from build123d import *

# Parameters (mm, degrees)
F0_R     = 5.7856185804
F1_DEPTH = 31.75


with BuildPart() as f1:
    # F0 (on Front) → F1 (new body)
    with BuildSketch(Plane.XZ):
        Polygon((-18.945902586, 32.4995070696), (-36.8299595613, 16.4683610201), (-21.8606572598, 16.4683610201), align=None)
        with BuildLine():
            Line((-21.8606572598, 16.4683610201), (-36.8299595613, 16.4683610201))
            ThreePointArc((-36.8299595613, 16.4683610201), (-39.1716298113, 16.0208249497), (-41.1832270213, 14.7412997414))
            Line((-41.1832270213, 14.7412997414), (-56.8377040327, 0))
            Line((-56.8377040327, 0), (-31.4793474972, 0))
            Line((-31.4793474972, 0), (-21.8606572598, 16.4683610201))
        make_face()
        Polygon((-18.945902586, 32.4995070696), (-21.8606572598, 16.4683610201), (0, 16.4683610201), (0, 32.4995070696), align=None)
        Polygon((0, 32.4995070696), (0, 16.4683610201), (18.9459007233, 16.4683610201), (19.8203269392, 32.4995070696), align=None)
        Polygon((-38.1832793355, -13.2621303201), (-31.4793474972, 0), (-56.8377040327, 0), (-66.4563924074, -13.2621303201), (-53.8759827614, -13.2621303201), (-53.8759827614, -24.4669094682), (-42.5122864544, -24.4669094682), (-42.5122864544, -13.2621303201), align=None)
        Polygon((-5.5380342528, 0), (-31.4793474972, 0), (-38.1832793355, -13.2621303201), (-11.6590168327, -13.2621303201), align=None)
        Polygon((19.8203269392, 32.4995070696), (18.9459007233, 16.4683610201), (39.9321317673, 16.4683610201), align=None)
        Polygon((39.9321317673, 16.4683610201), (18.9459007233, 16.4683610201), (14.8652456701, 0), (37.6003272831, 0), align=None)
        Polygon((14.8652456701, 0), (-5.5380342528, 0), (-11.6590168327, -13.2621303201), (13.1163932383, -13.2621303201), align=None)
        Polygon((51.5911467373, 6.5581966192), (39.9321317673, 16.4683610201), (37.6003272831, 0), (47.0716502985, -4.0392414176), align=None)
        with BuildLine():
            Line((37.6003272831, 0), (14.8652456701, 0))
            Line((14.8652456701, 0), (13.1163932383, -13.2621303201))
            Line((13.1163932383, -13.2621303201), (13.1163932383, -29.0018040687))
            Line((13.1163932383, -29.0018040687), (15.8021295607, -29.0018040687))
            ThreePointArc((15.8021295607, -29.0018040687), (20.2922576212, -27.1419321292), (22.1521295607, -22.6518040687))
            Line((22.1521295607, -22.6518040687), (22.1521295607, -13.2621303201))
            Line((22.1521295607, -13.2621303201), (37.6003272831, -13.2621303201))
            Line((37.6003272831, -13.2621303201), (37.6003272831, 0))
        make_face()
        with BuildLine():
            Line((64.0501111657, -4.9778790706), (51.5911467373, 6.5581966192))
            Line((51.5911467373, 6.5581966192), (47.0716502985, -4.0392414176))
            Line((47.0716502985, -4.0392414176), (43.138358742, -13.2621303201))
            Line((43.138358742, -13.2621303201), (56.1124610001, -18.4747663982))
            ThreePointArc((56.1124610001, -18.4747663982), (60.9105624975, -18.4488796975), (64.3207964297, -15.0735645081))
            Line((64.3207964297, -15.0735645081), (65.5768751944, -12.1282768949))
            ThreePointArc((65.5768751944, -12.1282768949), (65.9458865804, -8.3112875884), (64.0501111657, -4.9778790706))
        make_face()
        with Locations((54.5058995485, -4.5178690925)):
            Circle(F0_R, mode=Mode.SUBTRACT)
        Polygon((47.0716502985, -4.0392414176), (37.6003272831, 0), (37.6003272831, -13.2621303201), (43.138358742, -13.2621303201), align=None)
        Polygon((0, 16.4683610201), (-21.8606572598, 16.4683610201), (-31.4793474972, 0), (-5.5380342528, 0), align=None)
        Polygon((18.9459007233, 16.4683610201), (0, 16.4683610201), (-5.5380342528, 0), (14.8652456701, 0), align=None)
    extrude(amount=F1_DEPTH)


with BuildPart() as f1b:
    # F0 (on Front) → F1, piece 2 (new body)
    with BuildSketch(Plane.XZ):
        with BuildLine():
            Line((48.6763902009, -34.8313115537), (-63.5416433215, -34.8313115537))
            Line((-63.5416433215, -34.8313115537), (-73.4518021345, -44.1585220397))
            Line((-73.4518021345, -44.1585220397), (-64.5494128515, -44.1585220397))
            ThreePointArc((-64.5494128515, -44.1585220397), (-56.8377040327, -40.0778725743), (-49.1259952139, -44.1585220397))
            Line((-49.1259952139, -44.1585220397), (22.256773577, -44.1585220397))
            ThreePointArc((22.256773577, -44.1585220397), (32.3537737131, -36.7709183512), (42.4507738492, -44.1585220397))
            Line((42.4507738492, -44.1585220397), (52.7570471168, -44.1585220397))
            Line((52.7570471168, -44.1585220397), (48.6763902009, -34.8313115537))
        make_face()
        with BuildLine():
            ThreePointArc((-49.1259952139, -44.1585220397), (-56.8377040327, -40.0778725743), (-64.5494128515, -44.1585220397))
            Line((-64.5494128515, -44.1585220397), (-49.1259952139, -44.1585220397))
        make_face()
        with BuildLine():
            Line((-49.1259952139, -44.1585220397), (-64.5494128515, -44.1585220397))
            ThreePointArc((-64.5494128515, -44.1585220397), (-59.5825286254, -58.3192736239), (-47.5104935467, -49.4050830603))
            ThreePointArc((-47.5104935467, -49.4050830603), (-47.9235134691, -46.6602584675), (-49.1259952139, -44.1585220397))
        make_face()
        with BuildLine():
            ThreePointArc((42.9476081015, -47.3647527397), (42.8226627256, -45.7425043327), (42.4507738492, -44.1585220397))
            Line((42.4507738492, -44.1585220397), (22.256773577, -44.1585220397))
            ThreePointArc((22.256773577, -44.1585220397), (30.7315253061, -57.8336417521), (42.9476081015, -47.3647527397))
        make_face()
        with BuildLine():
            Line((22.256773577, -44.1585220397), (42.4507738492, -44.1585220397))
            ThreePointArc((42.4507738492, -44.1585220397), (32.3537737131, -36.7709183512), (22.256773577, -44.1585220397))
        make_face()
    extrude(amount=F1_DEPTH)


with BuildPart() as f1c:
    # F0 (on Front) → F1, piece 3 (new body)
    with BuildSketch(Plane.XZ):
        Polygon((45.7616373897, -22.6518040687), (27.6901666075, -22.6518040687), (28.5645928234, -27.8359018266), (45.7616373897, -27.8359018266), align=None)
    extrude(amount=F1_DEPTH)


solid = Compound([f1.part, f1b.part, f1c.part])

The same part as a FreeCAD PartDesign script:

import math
import FreeCAD as App
import Part
import Sketcher
Q = App.Units.Quantity

doc = App.newDocument("Part")
body = doc.addObject("PartDesign::Body", "Body")

# Sketch on XZ plane
sketch1 = body.newObject("Sketcher::SketchObject", "Sketch")
sketch1.AttachmentSupport = (doc.getObject("XZ_Plane"), [""])
sketch1.MapMode = "FlatFace"
sketch1.addGeometry(Part.LineSegment(App.Vector(-42.5, -13.3, 0), App.Vector(13.1, -13.3, 0)), False)
sketch1.addGeometry(Part.LineSegment(App.Vector(13.1, -13.3, 0), App.Vector(13.1, -29, 0)), False)
sketch1.addGeometry(Part.LineSegment(App.Vector(13.1, -29, 0), App.Vector(15.8, -29, 0)), False)
sketch1.addGeometry(Part.ArcOfCircle(Part.Circle(App.Vector(15.8, -22.7, 0), App.Vector(0, 0, 1), 6.3), math.radians(-90), math.radians(0)), False)
sketch1.addGeometry(Part.LineSegment(App.Vector(22.2, -22.7, 0), App.Vector(22.2, -13.3, 0)), False)
sketch1.addGeometry(Part.LineSegment(App.Vector(22.2, -13.3, 0), App.Vector(43.1, -13.3, 0)), False)
sketch1.addGeometry(Part.LineSegment(App.Vector(43.1, -13.3, 0), App.Vector(56.1, -18.5, 0)), False)
sketch1.addGeometry(Part.ArcOfCircle(Part.Circle(App.Vector(58.5, -12.6, 0), App.Vector(0, 0, 1), 6.3), math.radians(-112), math.radians(-23)), False)
sketch1.addGeometry(Part.LineSegment(App.Vector(64.3, -15.1, 0), App.Vector(65.6, -12.1, 0)), False)
sketch1.addGeometry(Part.ArcOfCircle(Part.Circle(App.Vector(59.7, -9.6, 0), App.Vector(0, 0, 1), 6.3), math.radians(-23), math.radians(47)), False)
sketch1.addGeometry(Part.LineSegment(App.Vector(64.1, -5, 0), App.Vector(51.6, 6.6, 0)), False)
sketch1.addGeometry(Part.LineSegment(App.Vector(51.6, 6.6, 0), App.Vector(39.9, 16.5, 0)), False)
sketch1.addGeometry(Part.LineSegment(App.Vector(39.9, 16.5, 0), App.Vector(19.8, 32.5, 0)), False)
sketch1.addGeometry(Part.LineSegment(App.Vector(19.8, 32.5, 0), App.Vector(-18.9, 32.5, 0)), False)
sketch1.addGeometry(Part.LineSegment(App.Vector(-18.9, 32.5, 0), App.Vector(-36.8, 16.5, 0)), False)
sketch1.addGeometry(Part.ArcOfCircle(Part.Circle(App.Vector(-36.8, 10.1, 0), App.Vector(0, 0, 1), 6.3), math.radians(90), math.radians(133)), False)
sketch1.addGeometry(Part.LineSegment(App.Vector(-41.2, 14.7, 0), App.Vector(-56.8, 0, 0)), False)
sketch1.addGeometry(Part.LineSegment(App.Vector(-56.8, 0, 0), App.Vector(-66.5, -13.3, 0)), False)
sketch1.addGeometry(Part.LineSegment(App.Vector(-66.5, -13.3, 0), App.Vector(-53.9, -13.3, 0)), False)
sketch1.addGeometry(Part.LineSegment(App.Vector(-53.9, -13.3, 0), App.Vector(-53.9, -24.5, 0)), False)
sketch1.addGeometry(Part.LineSegment(App.Vector(-53.9, -24.5, 0), App.Vector(-42.5, -24.5, 0)), False)
sketch1.addGeometry(Part.LineSegment(App.Vector(-42.5, -24.5, 0), App.Vector(-42.5, -13.3, 0)), False)
sketch1.addGeometry(Part.Circle(App.Vector(54.5, -4.5, 0), App.Vector(0, 0, 1), 5.8), False)
sketch1.addConstraint(Sketcher.Constraint("Coincident", 0, 2, 1, 1))
sketch1.addConstraint(Sketcher.Constraint("Coincident", 1, 2, 2, 1))
sketch1.addConstraint(Sketcher.Constraint("Tangent", 2, 2, 3, 1))
sketch1.addConstraint(Sketcher.Constraint("Tangent", 3, 2, 4, 1))
sketch1.addConstraint(Sketcher.Constraint("Coincident", 4, 2, 5, 1))
sketch1.addConstraint(Sketcher.Constraint("Coincident", 5, 2, 6, 1))
sketch1.addConstraint(Sketcher.Constraint("Tangent", 6, 2, 7, 1))
sketch1.addConstraint(Sketcher.Constraint("Tangent", 7, 2, 8, 1))
sketch1.addConstraint(Sketcher.Constraint("Tangent", 8, 2, 9, 1))
sketch1.addConstraint(Sketcher.Constraint("Tangent", 9, 2, 10, 1))
sketch1.addConstraint(Sketcher.Constraint("Coincident", 10, 2, 11, 1))
sketch1.addConstraint(Sketcher.Constraint("Coincident", 11, 2, 12, 1))
sketch1.addConstraint(Sketcher.Constraint("Coincident", 12, 2, 13, 1))
sketch1.addConstraint(Sketcher.Constraint("Coincident", 13, 2, 14, 1))
sketch1.addConstraint(Sketcher.Constraint("Coincident", 14, 2, 15, 1))
sketch1.addConstraint(Sketcher.Constraint("Tangent", 15, 2, 16, 1))
sketch1.addConstraint(Sketcher.Constraint("Coincident", 16, 2, 17, 1))
sketch1.addConstraint(Sketcher.Constraint("Coincident", 17, 2, 18, 1))
sketch1.addConstraint(Sketcher.Constraint("Coincident", 18, 2, 19, 1))
sketch1.addConstraint(Sketcher.Constraint("Coincident", 19, 2, 20, 1))
sketch1.addConstraint(Sketcher.Constraint("Coincident", 20, 2, 21, 1))
sketch1.addConstraint(Sketcher.Constraint("Coincident", 21, 2, 0, 1))
sketch1.addConstraint(Sketcher.Constraint("Horizontal", 0))
sketch1.addConstraint(Sketcher.Constraint("Vertical", 1))
sketch1.addConstraint(Sketcher.Constraint("Horizontal", 2))
sketch1.addConstraint(Sketcher.Constraint("Vertical", 4))
sketch1.addConstraint(Sketcher.Constraint("Horizontal", 5))
sketch1.addConstraint(Sketcher.Constraint("Horizontal", 13))
sketch1.addConstraint(Sketcher.Constraint("Horizontal", 18))
sketch1.addConstraint(Sketcher.Constraint("Vertical", 19))
sketch1.addConstraint(Sketcher.Constraint("Horizontal", 20))
sketch1.addConstraint(Sketcher.Constraint("Vertical", 21))
sketch1.addConstraint(Sketcher.Constraint("Equal", 3, 7))
sketch1.addConstraint(Sketcher.Constraint("Equal", 7, 9))
sketch1.addConstraint(Sketcher.Constraint("Equal", 9, 15))
sketch1.addConstraint(Sketcher.Constraint("PointOnObject", 16, 2, -1))
sketch1.addConstraint(Sketcher.Constraint("Horizontal", 0, 2, 4, 2))
sketch1.addConstraint(Sketcher.Constraint("Horizontal", 11, 2, 14, 2))
sketch1.addConstraint(Sketcher.Constraint("Horizontal", 5, 2, 17, 2))
sketch1.addConstraint(Sketcher.Constraint("Vertical", 15, 3, 14, 2))
sketch1.addConstraint(Sketcher.Constraint("Radius", 3, Q("0.25 in")))
sketch1.addConstraint(Sketcher.Constraint("Diameter", 22, Q("11.571237 mm")))
sketch1.addConstraint(Sketcher.Constraint("DistanceX", 15, 3, 22, 3, Q("3.5959 in")))
sketch1.addConstraint(Sketcher.Constraint("Distance", 10, Q("16.979601 mm")))
sketch1.addConstraint(Sketcher.Constraint("Distance", 12, Q("25.719299 mm")))
sketch1.addConstraint(Sketcher.Constraint("DistanceX", 0, 1, 0, 2, Q("55.62868 mm")))
sketch1.addConstraint(Sketcher.Constraint("DistanceX", 5, 1, 5, 2, Q("20.986229 mm")))
sketch1.addConstraint(Sketcher.Constraint("DistanceX", 13, 2, 13, 1, Q("38.76623 mm")))
sketch1.addConstraint(Sketcher.Constraint("DistanceX", 18, 1, 18, 2, Q("12.58041 mm")))
sketch1.addConstraint(Sketcher.Constraint("DistanceY", 19, 2, 19, 1, Q("11.204779 mm")))
sketch1.addConstraint(Sketcher.Constraint("DistanceX", -1, 1, 22, 3, Q("54.5059 mm")))
sketch1.addConstraint(Sketcher.Constraint("DistanceY", -1, 1, 15, 2, Q("14.7413 mm")))
sketch1.addConstraint(Sketcher.Constraint("DistanceX", 0, 2, 7, 3, Q("45.363399 mm")))
sketch1.addConstraint(Sketcher.Constraint("DistanceY", 6, 2, 7, 2, Q("3.401202 mm")))
sketch1.addConstraint(Sketcher.Constraint("DistanceX", 16, 2, 13, 2, Q("37.891801 mm")))
sketch1.addConstraint(Sketcher.Constraint("DistanceX", 2, 1, 2, 2, Q("2.685736 mm")))
sketch1.addConstraint(Sketcher.Constraint("DistanceX", 20, 1, 20, 2, Q("11.363696 mm")))
sketch1.addConstraint(Sketcher.Constraint("DistanceY", 1, 2, 1, 1, Q("15.739674 mm")))
sketch1.addConstraint(Sketcher.Constraint("DistanceX", -1, 1, 3, 3, Q("15.80213 mm")))
sketch1.addConstraint(Sketcher.Constraint("DistanceX", -1, 1, 9, 3, Q("59.735871 mm")))
sketch1.addConstraint(Sketcher.Constraint("DistanceY", 9, 3, -1, 1, Q("9.63726 mm")))
sketch1.addConstraint(Sketcher.Constraint("DistanceY", -1, 1, 15, 3, Q("10.118361 mm")))
sketch1.addConstraint(Sketcher.Constraint("DistanceY", 22, 3, -1, 1, Q("4.517869 mm")))
sketch1.addConstraint(Sketcher.Constraint("DistanceY", 0, 2, -1, 1, Q("13.26213 mm")))
sketch1.addConstraint(Sketcher.Constraint("DistanceX", -1, 1, 9, 2, Q("64.050111 mm")))
sketch1.addConstraint(Sketcher.Constraint("DistanceX", -1, 1, 11, 2, Q("39.932132 mm")))
pad1 = body.newObject("PartDesign::Pad", "Pad")
pad1.Profile = sketch1
pad1.Length = Q("1.25 in")
body2 = doc.addObject("PartDesign::Body", "Body001")

# Sketch on XZ plane
sketch2 = body2.newObject("Sketcher::SketchObject", "Sketch001")
sketch2.AttachmentSupport = (doc.getObject("XZ_Plane001"), [""])
sketch2.MapMode = "FlatFace"
sketch2.addGeometry(Part.LineSegment(App.Vector(48.7, -34.8, 0), App.Vector(-63.5, -34.8, 0)), False)
sketch2.addGeometry(Part.LineSegment(App.Vector(-63.5, -34.8, 0), App.Vector(-73.5, -44.2, 0)), False)
sketch2.addGeometry(Part.LineSegment(App.Vector(-73.5, -44.2, 0), App.Vector(-64.5, -44.2, 0)), False)
sketch2.addGeometry(Part.ArcOfCircle(Part.Circle(App.Vector(-56.8, -49.4, 0), App.Vector(0, 0, 1), 9.3), math.radians(146), math.radians(360)), False)
sketch2.addGeometry(Part.ArcOfCircle(Part.Circle(App.Vector(-56.8, -49.4, 0), App.Vector(0, 0, 1), 9.3), math.radians(0), math.radians(34)), False)
sketch2.addGeometry(Part.LineSegment(App.Vector(-49.1, -44.2, 0), App.Vector(22.3, -44.2, 0)), False)
sketch2.addGeometry(Part.ArcOfCircle(Part.Circle(App.Vector(32.4, -47.4, 0), App.Vector(0, 0, 1), 10.6), math.radians(162), math.radians(360)), False)
sketch2.addGeometry(Part.ArcOfCircle(Part.Circle(App.Vector(32.4, -47.4, 0), App.Vector(0, 0, 1), 10.6), math.radians(0), math.radians(17.62)), False)
sketch2.addGeometry(Part.LineSegment(App.Vector(42.5, -44.2, 0), App.Vector(52.8, -44.2, 0)), False)
sketch2.addGeometry(Part.LineSegment(App.Vector(52.8, -44.2, 0), App.Vector(48.7, -34.8, 0)), False)
sketch2.addConstraint(Sketcher.Constraint("Coincident", 0, 2, 1, 1))
sketch2.addConstraint(Sketcher.Constraint("Coincident", 1, 2, 2, 1))
sketch2.addConstraint(Sketcher.Constraint("Coincident", 2, 2, 3, 1))
sketch2.addConstraint(Sketcher.Constraint("Tangent", 3, 2, 4, 1))
sketch2.addConstraint(Sketcher.Constraint("Coincident", 4, 2, 5, 1))
sketch2.addConstraint(Sketcher.Constraint("Coincident", 5, 2, 6, 1))
sketch2.addConstraint(Sketcher.Constraint("Tangent", 6, 2, 7, 1))
sketch2.addConstraint(Sketcher.Constraint("Coincident", 7, 2, 8, 1))
sketch2.addConstraint(Sketcher.Constraint("Coincident", 8, 2, 9, 1))
sketch2.addConstraint(Sketcher.Constraint("Coincident", 9, 2, 0, 1))
sketch2.addConstraint(Sketcher.Constraint("Horizontal", 0))
sketch2.addConstraint(Sketcher.Constraint("Horizontal", 2))
sketch2.addConstraint(Sketcher.Constraint("Horizontal", 5))
sketch2.addConstraint(Sketcher.Constraint("Horizontal", 8))
sketch2.addConstraint(Sketcher.Constraint("Equal", 3, 4))
sketch2.addConstraint(Sketcher.Constraint("Equal", 6, 7))
sketch2.addConstraint(Sketcher.Constraint("Horizontal", 4, 3, 3, 2))
sketch2.addConstraint(Sketcher.Constraint("Horizontal", 2, 2, 4, 2))
sketch2.addConstraint(Sketcher.Constraint("Horizontal", 7, 3, 6, 2))
sketch2.addConstraint(Sketcher.Constraint("Horizontal", 5, 2, 7, 2))
sketch2.addConstraint(Sketcher.Constraint("Radius", 3, Q("9.32721 mm")))
sketch2.addConstraint(Sketcher.Constraint("Radius", 6, Q("10.593834 mm")))
sketch2.addConstraint(Sketcher.Constraint("DistanceX", 2, 1, 2, 2, Q("8.902389 mm")))
sketch2.addConstraint(Sketcher.Constraint("DistanceX", 5, 1, 5, 2, Q("71.382769 mm")))
sketch2.addConstraint(Sketcher.Constraint("DistanceX", 1, 2, 3, 3, Q("16.614098 mm")))
sketch2.addConstraint(Sketcher.Constraint("DistanceX", 5, 2, 6, 3, Q("10.097 mm")))
sketch2.addConstraint(Sketcher.Constraint("Distance", 1, Q("13.609118 mm")))
sketch2.addConstraint(Sketcher.Constraint("DistanceX", 0, 2, 0, 1, Q("112.218034 mm")))
sketch2.addConstraint(Sketcher.Constraint("DistanceX", 8, 1, 8, 2, Q("10.306273 mm")))
sketch2.addConstraint(Sketcher.Constraint("DistanceY", 0, 2, -1, 1, Q("34.831312 mm")))
sketch2.addConstraint(Sketcher.Constraint("DistanceX", -1, 1, 6, 2, Q("42.947608 mm")))
sketch2.addConstraint(Sketcher.Constraint("DistanceX", -1, 1, 9, 2, Q("48.67639 mm")))
pad2 = body2.newObject("PartDesign::Pad", "Pad001")
pad2.Profile = sketch2
pad2.Length = Q("1.25 in")
body3 = doc.addObject("PartDesign::Body", "Body002")

# Sketch on XZ plane
sketch3 = body3.newObject("Sketcher::SketchObject", "Sketch002")
sketch3.AttachmentSupport = (doc.getObject("XZ_Plane002"), [""])
sketch3.MapMode = "FlatFace"
sketch3.addGeometry(Part.LineSegment(App.Vector(46, -23, 0), App.Vector(28, -23, 0)), False)
sketch3.addGeometry(Part.LineSegment(App.Vector(28, -23, 0), App.Vector(29, -28, 0)), False)
sketch3.addGeometry(Part.LineSegment(App.Vector(29, -28, 0), App.Vector(46, -28, 0)), False)
sketch3.addGeometry(Part.LineSegment(App.Vector(46, -28, 0), App.Vector(46, -23, 0)), False)
sketch3.addConstraint(Sketcher.Constraint("Coincident", 0, 2, 1, 1))
sketch3.addConstraint(Sketcher.Constraint("Coincident", 1, 2, 2, 1))
sketch3.addConstraint(Sketcher.Constraint("Coincident", 2, 2, 3, 1))
sketch3.addConstraint(Sketcher.Constraint("Coincident", 3, 2, 0, 1))
sketch3.addConstraint(Sketcher.Constraint("Horizontal", 0))
sketch3.addConstraint(Sketcher.Constraint("Horizontal", 2))
sketch3.addConstraint(Sketcher.Constraint("Vertical", 3))
sketch3.addConstraint(Sketcher.Constraint("DistanceX", 0, 2, 0, 1, Q("18.071471 mm")))
sketch3.addConstraint(Sketcher.Constraint("DistanceY", 1, 2, -1, 1, Q("27.835902 mm")))
sketch3.addConstraint(Sketcher.Constraint("DistanceX", 2, 1, 2, 2, Q("17.197045 mm")))
sketch3.addConstraint(Sketcher.Constraint("DistanceY", 3, 1, 3, 2, Q("5.184098 mm")))
sketch3.addConstraint(Sketcher.Constraint("DistanceX", -1, 1, 0, 2, Q("27.690167 mm")))
pad3 = body3.newObject("PartDesign::Pad", "Pad002")
pad3.Profile = sketch3
pad3.Length = Q("1.25 in")

doc.recompute()
